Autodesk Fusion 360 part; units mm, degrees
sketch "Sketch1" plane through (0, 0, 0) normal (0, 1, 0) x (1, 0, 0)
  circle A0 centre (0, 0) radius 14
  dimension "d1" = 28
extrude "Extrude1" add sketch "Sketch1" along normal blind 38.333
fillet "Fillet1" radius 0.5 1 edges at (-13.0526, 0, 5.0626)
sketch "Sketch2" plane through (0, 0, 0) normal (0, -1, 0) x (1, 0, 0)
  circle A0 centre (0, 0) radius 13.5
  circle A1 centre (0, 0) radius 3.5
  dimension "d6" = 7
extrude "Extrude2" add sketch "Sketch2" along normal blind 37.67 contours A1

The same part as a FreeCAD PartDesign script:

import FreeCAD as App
import Part
import Sketcher
from FreeCAD import Vector


def edges_at(feature, points):
    """Names of the edges that pass closest to the given points."""
    edges = feature.Shape.Edges
    near = lambda p: min(range(len(edges)), key=lambda i: edges[i].distToShape(Part.Vertex(*p))[0])
    return sorted({f"Edge{near(p) + 1}" for p in points})

doc = App.newDocument("Part")
body = doc.addObject("PartDesign::Body", "Body")

sketch1 = doc.addObject("Sketcher::SketchObject", "Sketch")
body.addObject(sketch1)
sketch1.AttachmentSupport = (doc.XZ_Plane, [""])
sketch1.MapMode = "FlatFace"
sketch1.addGeometry(Part.Circle(Vector(0, 0, 0), Vector(0, 0, 1), 14), False)
sketch1.addConstraint(Sketcher.Constraint("Coincident", 0, 3, -1, 1))
sketch1.addConstraint(Sketcher.Constraint("Diameter", 0, 28.0))
pad1 = doc.addObject("PartDesign::Pad", "Pad")
body.addObject(pad1)
pad1.Profile = sketch1
pad1.Length = 38.333
pad1.Reversed = True
doc.recompute()

fillet = doc.addObject("PartDesign::Fillet", "Fillet")
body.addObject(fillet)
fillet.Base = (pad1, edges_at(pad1, [(-13.053, 0, 5.063)]))
fillet.Radius = 0.5

sketch2 = doc.addObject("Sketcher::SketchObject", "Sketch001")
body.addObject(sketch2)
sketch2.AttachmentSupport = (doc.XZ_Plane, [""])
sketch2.MapMode = "FlatFace"
sketch2.addGeometry(Part.Circle(Vector(0, 0, 0), Vector(0, 0, 1), 3.5), False)
sketch2.addConstraint(Sketcher.Constraint("Coincident", 0, 3, -1, 1))
sketch2.addConstraint(Sketcher.Constraint("Diameter", 0, 7.0))
pad2 = doc.addObject("PartDesign::Pad", "Pad001")
body.addObject(pad2)
pad2.Profile = sketch2
pad2.Length = 37.67

doc.recompute()
